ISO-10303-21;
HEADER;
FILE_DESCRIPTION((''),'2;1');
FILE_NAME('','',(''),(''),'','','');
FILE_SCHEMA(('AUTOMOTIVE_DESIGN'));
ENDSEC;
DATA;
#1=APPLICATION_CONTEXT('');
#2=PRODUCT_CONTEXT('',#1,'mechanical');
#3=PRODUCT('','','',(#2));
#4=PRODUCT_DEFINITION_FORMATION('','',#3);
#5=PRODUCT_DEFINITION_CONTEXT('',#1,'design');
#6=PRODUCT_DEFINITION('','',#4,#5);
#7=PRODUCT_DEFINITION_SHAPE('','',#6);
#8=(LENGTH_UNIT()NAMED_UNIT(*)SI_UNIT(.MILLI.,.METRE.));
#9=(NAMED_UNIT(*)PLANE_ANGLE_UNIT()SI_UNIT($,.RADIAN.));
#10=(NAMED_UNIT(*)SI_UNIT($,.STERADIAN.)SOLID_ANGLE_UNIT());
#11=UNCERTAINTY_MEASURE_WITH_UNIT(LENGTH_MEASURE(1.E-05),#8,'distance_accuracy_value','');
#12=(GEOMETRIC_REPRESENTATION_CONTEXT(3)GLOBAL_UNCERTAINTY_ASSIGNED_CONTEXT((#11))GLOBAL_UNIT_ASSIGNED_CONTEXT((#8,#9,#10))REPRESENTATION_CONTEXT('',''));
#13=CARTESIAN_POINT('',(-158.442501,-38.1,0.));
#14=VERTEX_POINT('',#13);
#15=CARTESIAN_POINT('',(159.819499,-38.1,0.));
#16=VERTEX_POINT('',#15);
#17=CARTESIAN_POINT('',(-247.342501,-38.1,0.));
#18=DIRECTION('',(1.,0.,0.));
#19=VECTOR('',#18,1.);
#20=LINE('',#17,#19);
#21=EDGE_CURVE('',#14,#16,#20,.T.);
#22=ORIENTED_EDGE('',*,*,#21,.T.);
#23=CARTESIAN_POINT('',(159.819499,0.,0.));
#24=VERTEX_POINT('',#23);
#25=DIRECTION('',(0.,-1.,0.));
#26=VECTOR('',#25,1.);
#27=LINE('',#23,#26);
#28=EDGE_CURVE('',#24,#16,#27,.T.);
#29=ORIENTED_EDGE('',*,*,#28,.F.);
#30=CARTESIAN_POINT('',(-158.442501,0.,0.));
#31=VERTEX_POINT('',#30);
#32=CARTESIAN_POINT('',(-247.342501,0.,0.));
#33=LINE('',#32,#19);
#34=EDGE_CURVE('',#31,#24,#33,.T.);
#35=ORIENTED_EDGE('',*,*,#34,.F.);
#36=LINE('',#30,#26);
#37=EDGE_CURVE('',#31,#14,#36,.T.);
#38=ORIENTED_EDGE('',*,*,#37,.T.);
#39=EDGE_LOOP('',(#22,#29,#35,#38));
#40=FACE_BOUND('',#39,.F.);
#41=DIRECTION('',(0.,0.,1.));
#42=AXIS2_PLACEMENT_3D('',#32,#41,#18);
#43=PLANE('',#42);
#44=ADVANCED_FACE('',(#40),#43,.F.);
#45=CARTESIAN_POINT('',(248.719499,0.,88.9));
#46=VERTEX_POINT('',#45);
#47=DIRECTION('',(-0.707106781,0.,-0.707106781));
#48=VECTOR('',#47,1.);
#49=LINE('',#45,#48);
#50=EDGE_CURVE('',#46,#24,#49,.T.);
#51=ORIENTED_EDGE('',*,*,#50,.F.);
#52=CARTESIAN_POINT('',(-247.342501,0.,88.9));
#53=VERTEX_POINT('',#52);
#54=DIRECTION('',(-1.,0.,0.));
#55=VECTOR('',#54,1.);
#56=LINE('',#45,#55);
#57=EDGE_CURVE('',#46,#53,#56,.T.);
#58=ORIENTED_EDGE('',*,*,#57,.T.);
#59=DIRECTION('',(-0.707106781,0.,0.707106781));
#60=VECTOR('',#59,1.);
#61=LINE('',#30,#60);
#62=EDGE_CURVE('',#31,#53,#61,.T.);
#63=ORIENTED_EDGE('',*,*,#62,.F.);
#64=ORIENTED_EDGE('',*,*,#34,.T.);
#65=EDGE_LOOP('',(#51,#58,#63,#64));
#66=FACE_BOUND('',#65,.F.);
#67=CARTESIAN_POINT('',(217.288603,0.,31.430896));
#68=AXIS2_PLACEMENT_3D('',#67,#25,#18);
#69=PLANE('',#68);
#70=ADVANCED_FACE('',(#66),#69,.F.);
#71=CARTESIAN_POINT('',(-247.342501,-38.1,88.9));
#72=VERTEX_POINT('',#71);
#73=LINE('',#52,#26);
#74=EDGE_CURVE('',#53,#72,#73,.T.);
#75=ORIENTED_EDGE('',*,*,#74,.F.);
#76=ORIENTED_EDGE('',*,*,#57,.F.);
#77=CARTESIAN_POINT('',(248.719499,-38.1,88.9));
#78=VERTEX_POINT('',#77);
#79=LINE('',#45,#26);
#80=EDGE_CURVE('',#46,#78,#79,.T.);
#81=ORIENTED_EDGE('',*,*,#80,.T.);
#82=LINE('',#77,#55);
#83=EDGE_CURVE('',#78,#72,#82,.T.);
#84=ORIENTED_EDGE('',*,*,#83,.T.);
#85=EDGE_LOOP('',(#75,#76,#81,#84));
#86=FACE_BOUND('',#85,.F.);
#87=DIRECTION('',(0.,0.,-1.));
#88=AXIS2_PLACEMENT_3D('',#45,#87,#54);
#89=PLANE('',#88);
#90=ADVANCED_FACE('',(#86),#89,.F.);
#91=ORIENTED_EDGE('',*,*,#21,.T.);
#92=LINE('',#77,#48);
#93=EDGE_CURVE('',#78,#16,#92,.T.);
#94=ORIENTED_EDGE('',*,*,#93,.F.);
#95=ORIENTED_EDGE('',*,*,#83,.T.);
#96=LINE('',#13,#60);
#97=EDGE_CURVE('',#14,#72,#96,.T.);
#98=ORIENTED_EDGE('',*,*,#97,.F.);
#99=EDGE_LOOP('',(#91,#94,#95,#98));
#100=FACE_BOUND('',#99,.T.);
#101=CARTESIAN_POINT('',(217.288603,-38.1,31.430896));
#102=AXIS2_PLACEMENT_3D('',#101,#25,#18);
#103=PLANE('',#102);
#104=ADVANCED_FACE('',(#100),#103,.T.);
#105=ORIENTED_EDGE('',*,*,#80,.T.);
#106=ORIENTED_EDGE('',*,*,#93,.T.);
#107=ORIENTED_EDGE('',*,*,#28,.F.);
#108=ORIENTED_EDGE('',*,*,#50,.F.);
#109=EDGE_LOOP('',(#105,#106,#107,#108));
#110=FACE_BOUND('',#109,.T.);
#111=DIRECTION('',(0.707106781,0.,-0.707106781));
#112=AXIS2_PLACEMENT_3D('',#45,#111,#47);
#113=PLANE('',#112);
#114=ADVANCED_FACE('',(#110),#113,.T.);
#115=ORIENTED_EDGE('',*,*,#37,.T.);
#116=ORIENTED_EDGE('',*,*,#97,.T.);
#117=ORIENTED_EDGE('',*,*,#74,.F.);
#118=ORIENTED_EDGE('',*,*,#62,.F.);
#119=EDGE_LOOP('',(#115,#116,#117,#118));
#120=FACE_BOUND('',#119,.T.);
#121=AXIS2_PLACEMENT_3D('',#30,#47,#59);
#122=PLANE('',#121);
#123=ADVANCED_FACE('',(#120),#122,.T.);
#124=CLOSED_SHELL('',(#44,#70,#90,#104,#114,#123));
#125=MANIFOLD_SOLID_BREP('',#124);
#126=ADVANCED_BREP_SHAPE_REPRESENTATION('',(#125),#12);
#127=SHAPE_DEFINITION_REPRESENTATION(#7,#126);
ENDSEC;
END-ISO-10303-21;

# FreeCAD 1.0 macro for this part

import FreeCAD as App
import Part
import Sketcher
from FreeCAD import Vector
Q = App.Units.Quantity

doc = App.newDocument("Part")
body = doc.addObject("PartDesign::Body", "Body")

# Sketch on XZ plane
sketch1 = doc.addObject("Sketcher::SketchObject", "Sketch")
body.addObject(sketch1)
sketch1.AttachmentSupport = (doc.XZ_Plane, [""])
sketch1.MapMode = "FlatFace"
sketch1.addGeometry([
    Part.LineSegment(Vector(249, 0, 0), Vector(249, 89, 0)),
    Part.LineSegment(Vector(249, 89, 0), Vector(-247, 89, 0)),
    Part.LineSegment(Vector(-247, 89, 0), Vector(-247, 0, 0)),
    Part.LineSegment(Vector(-247, 0, 0), Vector(249, 0, 0)),
], False)
sketch1.addConstraint([
    Sketcher.Constraint("Coincident", 0, 2, 1, 1),
    Sketcher.Constraint("Coincident", 1, 2, 2, 1),
    Sketcher.Constraint("Coincident", 2, 2, 3, 1),
    Sketcher.Constraint("Coincident", 3, 2, 0, 1),
    Sketcher.Constraint("Vertical", 0),
    Sketcher.Constraint("Horizontal", 1),
    Sketcher.Constraint("Vertical", 2),
    Sketcher.Constraint("Horizontal", 3),
    Sketcher.Constraint("PointOnObject", 2, 2, -1),
    Sketcher.Constraint("DistanceY", 0, 1, 0, 2, Q("3.5 in")),
    Sketcher.Constraint("DistanceX", 1, 2, 1, 1, Q("19.53 in")),
    Sketcher.Constraint("DistanceX", -1, 1, 0, 2, 248.719499),
])
pad1 = doc.addObject("PartDesign::Pad", "Pad")
body.addObject(pad1)
pad1.Profile = sketch1
pad1.Length = Q("1.5 in")

# Sketch on XZ plane
sketch2 = doc.addObject("Sketcher::SketchObject", "Sketch001")
body.addObject(sketch2)
sketch2.AttachmentSupport = (doc.XZ_Plane, [""])
sketch2.MapMode = "FlatFace"
sketch2.addGeometry([
    Part.LineSegment(Vector(-247, 0, 0), Vector(-158, 0, 0)),
    Part.LineSegment(Vector(-158, 0, 0), Vector(-247, 89, 0)),
    Part.LineSegment(Vector(-247, 89, 0), Vector(-247, 0, 0)),
], False)
sketch2.addConstraint([
    Sketcher.Constraint("Coincident", 0, 2, 1, 1),
    Sketcher.Constraint("Coincident", 1, 2, 2, 1),
    Sketcher.Constraint("Coincident", 2, 2, 0, 1),
    Sketcher.Constraint("Horizontal", 0),
    Sketcher.Constraint("Vertical", 2),
    Sketcher.Constraint("PointOnObject", 0, 2, -1),
    Sketcher.Constraint("Equal", 0, 2),
    Sketcher.Constraint("DistanceX", 0, 1, 0, 2, Q("3.5 in")),
    Sketcher.Constraint("DistanceX", 0, 2, -1, 1, 158.442501),
])
pocket1 = doc.addObject("PartDesign::Pocket", "Pocket")
body.addObject(pocket1)
pocket1.Profile = sketch2
pocket1.Length = Q("1.5 in")
pocket1.Reversed = True

# Sketch on XZ plane
sketch3 = doc.addObject("Sketcher::SketchObject", "Sketch002")
body.addObject(sketch3)
sketch3.AttachmentSupport = (doc.XZ_Plane, [""])
sketch3.MapMode = "FlatFace"
sketch3.addGeometry([
    Part.LineSegment(Vector(160, 0, 0), Vector(249, 0, 0)),
    Part.LineSegment(Vector(249, 0, 0), Vector(249, 89, 0)),
    Part.LineSegment(Vector(249, 89, 0), Vector(160, 0, 0)),
], False)
sketch3.addConstraint([
    Sketcher.Constraint("Coincident", 0, 2, 1, 1),
    Sketcher.Constraint("Coincident", 1, 2, 2, 1),
    Sketcher.Constraint("Coincident", 2, 2, 0, 1),
    Sketcher.Constraint("Horizontal", 0),
    Sketcher.Constraint("Vertical", 1),
    Sketcher.Constraint("PointOnObject", 0, 2, -1),
    Sketcher.Constraint("Equal", 0, 1),
    Sketcher.Constraint("DistanceX", 0, 1, 0, 2, Q("3.5 in")),
    Sketcher.Constraint("DistanceX", -1, 1, 0, 2, 248.719499),
])
pocket2 = doc.addObject("PartDesign::Pocket", "Pocket001")
body.addObject(pocket2)
pocket2.Profile = sketch3
pocket2.Length = Q("1.5 in")
pocket2.Reversed = True

doc.recompute()
